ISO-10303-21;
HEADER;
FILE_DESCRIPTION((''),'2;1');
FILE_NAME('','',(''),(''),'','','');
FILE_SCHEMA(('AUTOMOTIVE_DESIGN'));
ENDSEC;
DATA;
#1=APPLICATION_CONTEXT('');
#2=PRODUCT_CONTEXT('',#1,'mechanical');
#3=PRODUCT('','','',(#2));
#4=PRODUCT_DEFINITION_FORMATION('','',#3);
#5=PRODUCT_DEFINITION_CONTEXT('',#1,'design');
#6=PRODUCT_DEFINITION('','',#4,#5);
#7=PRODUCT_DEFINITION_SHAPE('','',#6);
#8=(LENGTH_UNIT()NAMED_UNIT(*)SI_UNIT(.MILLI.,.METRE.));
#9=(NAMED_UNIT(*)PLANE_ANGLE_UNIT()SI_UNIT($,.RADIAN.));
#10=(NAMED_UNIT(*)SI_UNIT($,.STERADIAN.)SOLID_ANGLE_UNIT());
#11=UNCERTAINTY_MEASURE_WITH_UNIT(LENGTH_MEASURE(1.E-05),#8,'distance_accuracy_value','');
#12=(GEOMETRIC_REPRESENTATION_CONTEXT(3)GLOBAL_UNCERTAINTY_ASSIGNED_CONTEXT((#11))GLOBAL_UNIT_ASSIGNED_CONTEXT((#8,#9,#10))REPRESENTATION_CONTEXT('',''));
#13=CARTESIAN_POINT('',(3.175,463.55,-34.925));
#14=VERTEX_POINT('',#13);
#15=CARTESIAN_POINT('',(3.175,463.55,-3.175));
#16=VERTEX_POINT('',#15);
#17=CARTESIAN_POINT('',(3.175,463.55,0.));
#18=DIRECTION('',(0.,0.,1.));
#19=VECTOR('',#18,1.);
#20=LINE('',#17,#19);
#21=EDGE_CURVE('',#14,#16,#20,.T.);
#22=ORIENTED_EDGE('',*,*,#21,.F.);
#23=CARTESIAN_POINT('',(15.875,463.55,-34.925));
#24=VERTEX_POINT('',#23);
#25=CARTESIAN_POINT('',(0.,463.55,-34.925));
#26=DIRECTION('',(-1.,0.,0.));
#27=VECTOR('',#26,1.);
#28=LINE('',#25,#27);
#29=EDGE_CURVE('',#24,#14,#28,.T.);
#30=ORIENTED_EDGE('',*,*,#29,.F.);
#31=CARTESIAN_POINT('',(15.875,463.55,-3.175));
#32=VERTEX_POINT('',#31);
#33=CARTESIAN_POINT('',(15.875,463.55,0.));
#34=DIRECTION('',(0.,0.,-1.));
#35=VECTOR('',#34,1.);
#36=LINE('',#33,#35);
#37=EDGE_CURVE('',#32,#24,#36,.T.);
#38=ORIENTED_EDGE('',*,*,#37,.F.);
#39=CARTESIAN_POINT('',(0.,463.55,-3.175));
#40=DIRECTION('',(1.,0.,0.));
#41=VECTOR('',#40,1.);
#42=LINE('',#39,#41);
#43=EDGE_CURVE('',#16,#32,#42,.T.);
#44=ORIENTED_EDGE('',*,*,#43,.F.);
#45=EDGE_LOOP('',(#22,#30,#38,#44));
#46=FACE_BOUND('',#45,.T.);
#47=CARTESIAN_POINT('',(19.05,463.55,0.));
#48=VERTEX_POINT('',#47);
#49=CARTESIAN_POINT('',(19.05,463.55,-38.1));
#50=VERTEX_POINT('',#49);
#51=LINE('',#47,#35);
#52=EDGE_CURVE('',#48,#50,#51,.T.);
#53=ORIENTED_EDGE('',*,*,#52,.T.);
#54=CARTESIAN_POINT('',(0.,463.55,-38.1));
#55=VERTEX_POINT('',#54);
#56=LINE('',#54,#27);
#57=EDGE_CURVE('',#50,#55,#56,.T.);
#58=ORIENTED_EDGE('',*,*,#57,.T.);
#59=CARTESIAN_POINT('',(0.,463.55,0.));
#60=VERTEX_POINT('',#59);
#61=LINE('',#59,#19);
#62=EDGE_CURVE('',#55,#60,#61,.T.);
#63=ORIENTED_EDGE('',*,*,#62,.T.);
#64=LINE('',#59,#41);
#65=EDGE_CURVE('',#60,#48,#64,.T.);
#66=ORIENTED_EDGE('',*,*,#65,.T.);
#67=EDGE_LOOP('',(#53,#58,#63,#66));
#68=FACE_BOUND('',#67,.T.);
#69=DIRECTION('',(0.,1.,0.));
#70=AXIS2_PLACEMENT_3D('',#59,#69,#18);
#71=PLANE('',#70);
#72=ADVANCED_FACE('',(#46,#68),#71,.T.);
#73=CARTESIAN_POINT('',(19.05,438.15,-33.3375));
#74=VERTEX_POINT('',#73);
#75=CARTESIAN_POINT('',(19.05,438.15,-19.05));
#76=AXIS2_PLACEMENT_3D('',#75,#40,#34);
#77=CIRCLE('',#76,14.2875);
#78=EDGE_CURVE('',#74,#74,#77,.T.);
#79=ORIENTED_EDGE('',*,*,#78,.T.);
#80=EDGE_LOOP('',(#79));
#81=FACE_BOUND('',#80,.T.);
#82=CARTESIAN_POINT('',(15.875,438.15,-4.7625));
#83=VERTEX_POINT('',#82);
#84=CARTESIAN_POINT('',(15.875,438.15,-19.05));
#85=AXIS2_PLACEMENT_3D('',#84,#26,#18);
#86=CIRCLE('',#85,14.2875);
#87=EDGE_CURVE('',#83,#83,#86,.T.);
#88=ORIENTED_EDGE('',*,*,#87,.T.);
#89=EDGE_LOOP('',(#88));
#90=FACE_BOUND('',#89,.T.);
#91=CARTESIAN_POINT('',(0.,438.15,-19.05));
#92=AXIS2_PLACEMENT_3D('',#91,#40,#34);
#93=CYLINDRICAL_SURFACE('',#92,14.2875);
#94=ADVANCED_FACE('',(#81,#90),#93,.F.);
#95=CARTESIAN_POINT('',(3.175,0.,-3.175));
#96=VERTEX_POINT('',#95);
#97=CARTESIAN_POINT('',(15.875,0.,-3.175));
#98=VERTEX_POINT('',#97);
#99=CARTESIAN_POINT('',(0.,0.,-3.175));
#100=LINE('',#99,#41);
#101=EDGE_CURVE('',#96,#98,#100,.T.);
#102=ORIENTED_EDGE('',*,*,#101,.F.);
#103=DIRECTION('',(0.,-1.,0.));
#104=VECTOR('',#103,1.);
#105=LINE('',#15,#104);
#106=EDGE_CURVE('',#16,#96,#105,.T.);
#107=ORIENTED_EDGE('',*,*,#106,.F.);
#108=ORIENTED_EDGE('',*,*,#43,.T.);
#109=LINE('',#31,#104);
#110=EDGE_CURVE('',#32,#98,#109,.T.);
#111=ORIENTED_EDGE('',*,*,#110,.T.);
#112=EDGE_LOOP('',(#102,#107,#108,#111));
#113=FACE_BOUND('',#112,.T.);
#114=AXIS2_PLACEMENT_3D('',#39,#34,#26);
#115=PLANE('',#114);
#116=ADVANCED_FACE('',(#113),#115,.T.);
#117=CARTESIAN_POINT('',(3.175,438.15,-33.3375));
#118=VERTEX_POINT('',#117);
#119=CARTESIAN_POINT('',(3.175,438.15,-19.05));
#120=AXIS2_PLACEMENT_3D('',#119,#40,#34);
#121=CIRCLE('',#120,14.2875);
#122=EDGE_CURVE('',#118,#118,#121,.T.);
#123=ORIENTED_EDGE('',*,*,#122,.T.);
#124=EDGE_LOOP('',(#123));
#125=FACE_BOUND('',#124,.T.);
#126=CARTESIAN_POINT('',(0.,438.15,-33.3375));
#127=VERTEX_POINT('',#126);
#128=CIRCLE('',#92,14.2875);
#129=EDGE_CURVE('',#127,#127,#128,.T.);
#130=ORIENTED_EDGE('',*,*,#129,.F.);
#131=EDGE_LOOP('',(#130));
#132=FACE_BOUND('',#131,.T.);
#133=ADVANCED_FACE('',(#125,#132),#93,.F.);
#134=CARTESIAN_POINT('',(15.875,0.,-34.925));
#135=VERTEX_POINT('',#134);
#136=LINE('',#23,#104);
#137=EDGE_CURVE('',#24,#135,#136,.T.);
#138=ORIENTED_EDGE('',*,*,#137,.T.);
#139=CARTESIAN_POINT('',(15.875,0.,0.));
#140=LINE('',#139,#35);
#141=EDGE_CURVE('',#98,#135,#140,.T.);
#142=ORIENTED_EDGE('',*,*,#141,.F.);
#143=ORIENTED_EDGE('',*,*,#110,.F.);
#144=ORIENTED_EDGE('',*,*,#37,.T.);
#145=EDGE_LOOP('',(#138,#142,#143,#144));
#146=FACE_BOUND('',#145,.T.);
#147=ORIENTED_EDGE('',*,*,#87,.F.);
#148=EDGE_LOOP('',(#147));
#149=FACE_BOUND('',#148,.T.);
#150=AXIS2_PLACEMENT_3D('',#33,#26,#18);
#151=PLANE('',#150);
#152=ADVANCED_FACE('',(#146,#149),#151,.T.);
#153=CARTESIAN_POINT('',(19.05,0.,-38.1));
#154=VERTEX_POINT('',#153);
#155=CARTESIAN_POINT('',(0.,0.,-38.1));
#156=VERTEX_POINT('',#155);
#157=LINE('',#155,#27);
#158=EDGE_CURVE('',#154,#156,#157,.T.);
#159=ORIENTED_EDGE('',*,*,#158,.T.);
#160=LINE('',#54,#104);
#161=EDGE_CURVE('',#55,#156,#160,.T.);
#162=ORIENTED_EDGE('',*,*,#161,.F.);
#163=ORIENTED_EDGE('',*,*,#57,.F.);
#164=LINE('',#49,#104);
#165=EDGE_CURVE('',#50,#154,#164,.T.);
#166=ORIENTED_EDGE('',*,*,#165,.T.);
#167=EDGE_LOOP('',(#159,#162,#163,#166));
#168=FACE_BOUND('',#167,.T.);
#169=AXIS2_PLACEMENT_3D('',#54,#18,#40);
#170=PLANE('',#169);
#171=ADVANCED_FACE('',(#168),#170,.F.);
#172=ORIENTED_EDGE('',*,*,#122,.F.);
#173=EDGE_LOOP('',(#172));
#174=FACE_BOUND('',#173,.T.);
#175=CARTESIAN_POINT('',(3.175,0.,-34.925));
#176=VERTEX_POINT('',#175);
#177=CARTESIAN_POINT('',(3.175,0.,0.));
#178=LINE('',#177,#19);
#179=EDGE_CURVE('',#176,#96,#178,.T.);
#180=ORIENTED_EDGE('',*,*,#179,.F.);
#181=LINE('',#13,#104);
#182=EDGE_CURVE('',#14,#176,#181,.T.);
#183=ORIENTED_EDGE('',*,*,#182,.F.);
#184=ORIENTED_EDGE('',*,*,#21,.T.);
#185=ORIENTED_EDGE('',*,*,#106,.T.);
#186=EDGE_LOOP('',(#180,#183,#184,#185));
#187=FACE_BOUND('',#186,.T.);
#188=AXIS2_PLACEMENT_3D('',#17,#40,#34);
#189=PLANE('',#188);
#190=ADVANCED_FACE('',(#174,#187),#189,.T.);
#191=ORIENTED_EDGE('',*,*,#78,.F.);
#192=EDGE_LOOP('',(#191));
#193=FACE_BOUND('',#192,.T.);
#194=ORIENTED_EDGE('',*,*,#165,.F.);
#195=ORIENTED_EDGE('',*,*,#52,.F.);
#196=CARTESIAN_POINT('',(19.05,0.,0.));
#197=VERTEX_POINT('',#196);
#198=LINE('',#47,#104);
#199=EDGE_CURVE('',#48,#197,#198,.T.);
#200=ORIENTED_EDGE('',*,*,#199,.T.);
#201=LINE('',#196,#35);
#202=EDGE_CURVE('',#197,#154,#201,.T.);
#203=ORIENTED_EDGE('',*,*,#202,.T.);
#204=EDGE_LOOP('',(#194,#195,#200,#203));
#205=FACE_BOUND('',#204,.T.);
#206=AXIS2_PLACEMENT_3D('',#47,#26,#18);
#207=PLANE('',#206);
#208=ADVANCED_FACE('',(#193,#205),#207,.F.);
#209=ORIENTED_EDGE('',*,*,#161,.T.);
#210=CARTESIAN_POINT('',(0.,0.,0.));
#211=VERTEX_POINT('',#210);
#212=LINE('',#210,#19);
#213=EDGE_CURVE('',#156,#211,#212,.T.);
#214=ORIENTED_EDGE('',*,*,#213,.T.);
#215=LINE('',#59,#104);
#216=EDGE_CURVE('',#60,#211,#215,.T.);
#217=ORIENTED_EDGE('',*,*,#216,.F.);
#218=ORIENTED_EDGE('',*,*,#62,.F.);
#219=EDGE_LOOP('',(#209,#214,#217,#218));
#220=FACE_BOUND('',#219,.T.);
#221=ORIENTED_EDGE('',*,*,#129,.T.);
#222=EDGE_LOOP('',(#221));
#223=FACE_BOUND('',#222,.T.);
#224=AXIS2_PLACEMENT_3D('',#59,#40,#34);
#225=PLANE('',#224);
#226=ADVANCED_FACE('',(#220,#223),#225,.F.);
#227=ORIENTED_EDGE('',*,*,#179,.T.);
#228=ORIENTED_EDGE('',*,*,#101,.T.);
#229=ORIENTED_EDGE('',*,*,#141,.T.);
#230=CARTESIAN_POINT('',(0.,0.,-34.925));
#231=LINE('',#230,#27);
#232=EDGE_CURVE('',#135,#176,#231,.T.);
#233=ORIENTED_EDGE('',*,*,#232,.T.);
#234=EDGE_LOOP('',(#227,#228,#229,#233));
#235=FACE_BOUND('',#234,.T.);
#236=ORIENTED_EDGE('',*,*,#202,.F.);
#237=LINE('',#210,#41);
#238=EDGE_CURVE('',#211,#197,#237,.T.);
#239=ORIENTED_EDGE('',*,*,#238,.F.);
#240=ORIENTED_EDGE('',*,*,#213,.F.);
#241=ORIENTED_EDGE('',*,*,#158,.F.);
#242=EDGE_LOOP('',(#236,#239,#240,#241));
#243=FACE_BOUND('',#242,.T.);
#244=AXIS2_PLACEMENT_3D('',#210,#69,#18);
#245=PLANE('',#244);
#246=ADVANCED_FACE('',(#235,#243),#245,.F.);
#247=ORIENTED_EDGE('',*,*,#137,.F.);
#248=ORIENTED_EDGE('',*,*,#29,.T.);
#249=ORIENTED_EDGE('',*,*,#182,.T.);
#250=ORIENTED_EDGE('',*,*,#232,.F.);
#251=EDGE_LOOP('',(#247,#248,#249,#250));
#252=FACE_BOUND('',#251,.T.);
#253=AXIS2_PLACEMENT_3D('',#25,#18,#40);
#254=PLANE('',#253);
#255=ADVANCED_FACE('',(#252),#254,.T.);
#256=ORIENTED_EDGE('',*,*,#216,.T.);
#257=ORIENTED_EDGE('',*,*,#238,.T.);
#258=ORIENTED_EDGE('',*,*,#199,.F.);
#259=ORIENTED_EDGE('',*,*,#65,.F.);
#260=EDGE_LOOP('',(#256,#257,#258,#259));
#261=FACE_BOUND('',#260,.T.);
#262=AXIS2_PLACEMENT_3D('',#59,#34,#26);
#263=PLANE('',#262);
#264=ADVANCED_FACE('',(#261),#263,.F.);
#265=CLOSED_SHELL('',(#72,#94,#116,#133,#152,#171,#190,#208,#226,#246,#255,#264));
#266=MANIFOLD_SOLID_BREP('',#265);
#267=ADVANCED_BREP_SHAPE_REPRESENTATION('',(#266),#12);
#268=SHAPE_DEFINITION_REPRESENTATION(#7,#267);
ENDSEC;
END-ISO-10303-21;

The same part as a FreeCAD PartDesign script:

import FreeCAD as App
import Part
import Sketcher

V = App.Vector
Q = App.Units.Quantity


def add_polygon(sketch, points):
    """Adds a closed chain of lines whose ends are joined by coincident constraints."""
    first, n = sketch.GeometryCount, len(points)
    for a, b in zip(points, points[1:] + points[:1]):
        sketch.addGeometry(Part.LineSegment(App.Vector(*a, 0), App.Vector(*b, 0)), False)
    for i in range(n):
        sketch.addConstraint(Sketcher.Constraint("Coincident", first + i, 2, first + (i + 1) % n, 1))

doc = App.newDocument("Part")
params = doc.addObject("Spreadsheet::Sheet", "Params")
for row, (alias, value) in enumerate([
    ("sketch1_width", "0.5 in"),
    ("sketch1_height", "1.5 in"),
    ("sketch1_width2", "0.75 in"),
    ("sketch1_height2", "1.25 in"),
    ("pad1_length", "18.25 in"),
    ("sketch2_diameter", "1.125 in"),
    ("pocket1_length", "0.75 in"),
], start=1):
    params.set(f"A{row}", alias)
    params.set(f"B{row}", "=" + value)
    params.setAlias(f"B{row}", alias)

body = doc.addObject("PartDesign::Body", "Body")

sketch1 = body.newObject("Sketcher::SketchObject", "Sketch")
sketch1.AttachmentSupport = (doc.getObject("XZ_Plane"), [""])
sketch1.MapMode = "FlatFace"
add_polygon(sketch1, [(0, -38), (0, 0), (19, 0), (19, -38)])
add_polygon(sketch1, [(16, -3), (3, -3), (3, -35), (16, -35)])
sketch1.addConstraint([
    Sketcher.Constraint("Vertical", 0),
    Sketcher.Constraint("Horizontal", 1),
    Sketcher.Constraint("Vertical", 2),
    Sketcher.Constraint("Horizontal", 3),
    Sketcher.Constraint("Horizontal", 4),
    Sketcher.Constraint("Vertical", 5),
    Sketcher.Constraint("Horizontal", 6),
    Sketcher.Constraint("Vertical", 7),
    Sketcher.Constraint("Coincident", 0, 2, -1, 1),
    Sketcher.Constraint("DistanceX", 4, 2, 4, 1, Q("0.5 in")),
    Sketcher.Constraint("DistanceY", 0, 1, 0, 2, Q("1.5 in")),
    Sketcher.Constraint("DistanceX", 1, 1, 1, 2, Q("0.75 in")),
    Sketcher.Constraint("DistanceY", 5, 2, 5, 1, Q("1.25 in")),
    Sketcher.Constraint("DistanceX", -1, 1, 4, 2, Q("0.125 in")),
    Sketcher.Constraint("DistanceY", 4, 2, -1, 1, Q("0.125 in")),
])
sketch1.setExpression("Constraints[17]", "Params.sketch1_width")
sketch1.setExpression("Constraints[18]", "Params.sketch1_height")
sketch1.setExpression("Constraints[19]", "Params.sketch1_width2")
sketch1.setExpression("Constraints[20]", "Params.sketch1_height2")
pad1 = body.newObject("PartDesign::Pad", "Pad")
pad1.Profile = sketch1
pad1.setExpression("Length", "Params.pad1_length")
pad1.Reversed = True

sketch2 = body.newObject("Sketcher::SketchObject", "Sketch001")
sketch2.AttachmentSupport = (doc.getObject("YZ_Plane"), [""])
sketch2.MapMode = "FlatFace"
sketch2.AttachmentOffset = App.Placement(V(0, 0, 0.75 * 25.4), App.Rotation())
sketch2.addGeometry(Part.Circle(V(438, -19, 0), V(0, 0, 1), 14), False)
sketch2.addConstraint([
    Sketcher.Constraint("Diameter", 0, Q("1.125 in")),
    Sketcher.Constraint("DistanceX", -1, 1, 0, 3, Q("17.25 in")),
    Sketcher.Constraint("DistanceY", 0, 3, -1, 1, Q("0.75 in")),
])
sketch2.setExpression("Constraints[0]", "Params.sketch2_diameter")
pocket1 = body.newObject("PartDesign::Pocket", "Pocket")
pocket1.Profile = sketch2
pocket1.setExpression("Length", "Params.pocket1_length")

doc.recompute()
